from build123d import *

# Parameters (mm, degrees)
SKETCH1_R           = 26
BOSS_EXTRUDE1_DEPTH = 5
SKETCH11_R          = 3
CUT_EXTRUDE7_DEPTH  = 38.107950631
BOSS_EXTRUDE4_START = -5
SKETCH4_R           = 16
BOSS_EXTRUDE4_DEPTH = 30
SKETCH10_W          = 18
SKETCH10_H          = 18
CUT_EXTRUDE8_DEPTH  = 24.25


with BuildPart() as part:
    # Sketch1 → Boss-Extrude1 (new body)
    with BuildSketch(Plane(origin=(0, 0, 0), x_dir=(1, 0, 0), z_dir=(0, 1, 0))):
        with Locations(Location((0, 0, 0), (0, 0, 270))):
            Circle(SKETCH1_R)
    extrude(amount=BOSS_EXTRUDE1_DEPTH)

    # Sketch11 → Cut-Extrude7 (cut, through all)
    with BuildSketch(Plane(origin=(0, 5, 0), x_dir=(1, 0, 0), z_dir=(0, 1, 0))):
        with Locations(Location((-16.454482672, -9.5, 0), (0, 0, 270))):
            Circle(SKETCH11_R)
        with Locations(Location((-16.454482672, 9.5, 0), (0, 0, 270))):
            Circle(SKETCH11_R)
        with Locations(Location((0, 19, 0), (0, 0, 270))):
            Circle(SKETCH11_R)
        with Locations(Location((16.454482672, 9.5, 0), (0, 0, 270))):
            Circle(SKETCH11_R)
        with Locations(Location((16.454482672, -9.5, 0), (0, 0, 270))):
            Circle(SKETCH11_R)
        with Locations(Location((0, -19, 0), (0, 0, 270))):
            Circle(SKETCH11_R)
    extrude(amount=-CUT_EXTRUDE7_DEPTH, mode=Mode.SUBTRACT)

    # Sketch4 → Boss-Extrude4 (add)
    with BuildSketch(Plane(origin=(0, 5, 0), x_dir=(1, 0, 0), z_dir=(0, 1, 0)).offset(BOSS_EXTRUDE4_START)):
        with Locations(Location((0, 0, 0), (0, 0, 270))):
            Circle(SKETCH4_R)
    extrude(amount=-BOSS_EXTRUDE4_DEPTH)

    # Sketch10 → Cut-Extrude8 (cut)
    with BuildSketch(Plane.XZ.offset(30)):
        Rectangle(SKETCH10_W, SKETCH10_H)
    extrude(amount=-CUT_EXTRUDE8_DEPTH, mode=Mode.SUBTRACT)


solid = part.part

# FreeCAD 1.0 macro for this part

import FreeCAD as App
import Part
import Sketcher

V = App.Vector

doc = App.newDocument("Part")
body = doc.addObject("PartDesign::Body", "Body")

sketch1 = doc.addObject("Sketcher::SketchObject", "Sketch")
body.addObject(sketch1)
sketch1.AttachmentSupport = (doc.XZ_Plane, [""])
sketch1.MapMode = "FlatFace"
sketch1.addGeometry(Part.Circle(V(0, 0, 0), V(0, 0, 1), 26), False)
sketch1.addConstraint([
    Sketcher.Constraint("Coincident", 0, 3, -1, 1),
    Sketcher.Constraint("Diameter", 0, 52.0),
])
pad1 = doc.addObject("PartDesign::Pad", "Pad")
body.addObject(pad1)
pad1.Profile = sketch1
pad1.Length = 5
pad1.Reversed = True

sketch2 = doc.addObject("Sketcher::SketchObject", "Sketch001")
body.addObject(sketch2)
sketch2.AttachmentSupport = (doc.XZ_Plane, [""])
sketch2.MapMode = "FlatFace"
sketch2.AttachmentOffset = App.Placement(V(0, 0, -5), App.Rotation())
sketch2.addGeometry([
    Part.Circle(V(-16.5, 9.5, 0), V(0, 0, 1), 3),
    Part.Circle(V(-16.5, -9.5, 0), V(0, 0, 1), 3),
    Part.Circle(V(0, -19, 0), V(0, 0, 1), 3),
    Part.Circle(V(16.5, -9.5, 0), V(0, 0, 1), 3),
    Part.Circle(V(16.5, 9.5, 0), V(0, 0, 1), 3),
    Part.Circle(V(0, 19, 0), V(0, 0, 1), 3),
], False)
sketch2.addConstraint([
    Sketcher.Constraint("Equal", 0, 1),
    Sketcher.Constraint("Equal", 1, 2),
    Sketcher.Constraint("Equal", 2, 3),
    Sketcher.Constraint("Equal", 3, 4),
    Sketcher.Constraint("Equal", 4, 5),
    Sketcher.Constraint("Symmetric", 0, 3, 3, 3, -1, 1),
    Sketcher.Constraint("Symmetric", 1, 3, 4, 3, -1, 1),
    Sketcher.Constraint("Symmetric", 2, 3, 5, 3, -1, 1),
    Sketcher.Constraint("Symmetric", 1, 3, 3, 3, -2),
    Sketcher.Constraint("PointOnObject", 2, 3, -2),
    Sketcher.Constraint("Diameter", 0, 6.0),
    Sketcher.Constraint("DistanceY", 2, 3, -1, 1, 19.0),
    Sketcher.Constraint("DistanceY", 1, 3, 0, 3, 19.0),
    Sketcher.Constraint("DistanceX", 0, 3, -1, 1, 16.454483),
])
pocket1 = doc.addObject("PartDesign::Pocket", "Pocket")
body.addObject(pocket1)
pocket1.Profile = sketch2
pocket1.Type = "ThroughAll"
pocket1.Reversed = True

sketch3 = doc.addObject("Sketcher::SketchObject", "Sketch002")
body.addObject(sketch3)
sketch3.AttachmentSupport = (doc.XZ_Plane, [""])
sketch3.MapMode = "FlatFace"
sketch3.addGeometry(Part.Circle(V(0, 0, 0), V(0, 0, 1), 16), False)
sketch3.addConstraint([
    Sketcher.Constraint("Coincident", 0, 3, -1, 1),
    Sketcher.Constraint("Diameter", 0, 32.0),
])
pad2 = doc.addObject("PartDesign::Pad", "Pad001")
body.addObject(pad2)
pad2.Profile = sketch3
pad2.Length = 30

sketch4 = doc.addObject("Sketcher::SketchObject", "Sketch003")
body.addObject(sketch4)
sketch4.AttachmentSupport = (doc.XZ_Plane, [""])
sketch4.MapMode = "FlatFace"
sketch4.AttachmentOffset = App.Placement(V(0, 0, 30), App.Rotation())
sketch4.addGeometry([
    Part.LineSegment(V(-9, 9, 0), V(-9, -9, 0)),
    Part.LineSegment(V(-9, -9, 0), V(9, -9, 0)),
    Part.LineSegment(V(9, -9, 0), V(9, 9, 0)),
    Part.LineSegment(V(9, 9, 0), V(-9, 9, 0)),
], False)
sketch4.addConstraint([
    Sketcher.Constraint("Coincident", 0, 2, 1, 1),
    Sketcher.Constraint("Coincident", 1, 2, 2, 1),
    Sketcher.Constraint("Coincident", 2, 2, 3, 1),
    Sketcher.Constraint("Coincident", 3, 2, 0, 1),
    Sketcher.Constraint("Vertical", 0),
    Sketcher.Constraint("Horizontal", 1),
    Sketcher.Constraint("Vertical", 2),
    Sketcher.Constraint("Horizontal", 3),
    Sketcher.Constraint("Symmetric", 0, 2, 2, 2, -1, 1),
    Sketcher.Constraint("Equal", 3, 0),
    Sketcher.Constraint("DistanceX", 1, 1, 1, 2, 18.0),
])
pocket2 = doc.addObject("PartDesign::Pocket", "Pocket001")
body.addObject(pocket2)
pocket2.Profile = sketch4
pocket2.Length = 24.25

doc.recompute()
